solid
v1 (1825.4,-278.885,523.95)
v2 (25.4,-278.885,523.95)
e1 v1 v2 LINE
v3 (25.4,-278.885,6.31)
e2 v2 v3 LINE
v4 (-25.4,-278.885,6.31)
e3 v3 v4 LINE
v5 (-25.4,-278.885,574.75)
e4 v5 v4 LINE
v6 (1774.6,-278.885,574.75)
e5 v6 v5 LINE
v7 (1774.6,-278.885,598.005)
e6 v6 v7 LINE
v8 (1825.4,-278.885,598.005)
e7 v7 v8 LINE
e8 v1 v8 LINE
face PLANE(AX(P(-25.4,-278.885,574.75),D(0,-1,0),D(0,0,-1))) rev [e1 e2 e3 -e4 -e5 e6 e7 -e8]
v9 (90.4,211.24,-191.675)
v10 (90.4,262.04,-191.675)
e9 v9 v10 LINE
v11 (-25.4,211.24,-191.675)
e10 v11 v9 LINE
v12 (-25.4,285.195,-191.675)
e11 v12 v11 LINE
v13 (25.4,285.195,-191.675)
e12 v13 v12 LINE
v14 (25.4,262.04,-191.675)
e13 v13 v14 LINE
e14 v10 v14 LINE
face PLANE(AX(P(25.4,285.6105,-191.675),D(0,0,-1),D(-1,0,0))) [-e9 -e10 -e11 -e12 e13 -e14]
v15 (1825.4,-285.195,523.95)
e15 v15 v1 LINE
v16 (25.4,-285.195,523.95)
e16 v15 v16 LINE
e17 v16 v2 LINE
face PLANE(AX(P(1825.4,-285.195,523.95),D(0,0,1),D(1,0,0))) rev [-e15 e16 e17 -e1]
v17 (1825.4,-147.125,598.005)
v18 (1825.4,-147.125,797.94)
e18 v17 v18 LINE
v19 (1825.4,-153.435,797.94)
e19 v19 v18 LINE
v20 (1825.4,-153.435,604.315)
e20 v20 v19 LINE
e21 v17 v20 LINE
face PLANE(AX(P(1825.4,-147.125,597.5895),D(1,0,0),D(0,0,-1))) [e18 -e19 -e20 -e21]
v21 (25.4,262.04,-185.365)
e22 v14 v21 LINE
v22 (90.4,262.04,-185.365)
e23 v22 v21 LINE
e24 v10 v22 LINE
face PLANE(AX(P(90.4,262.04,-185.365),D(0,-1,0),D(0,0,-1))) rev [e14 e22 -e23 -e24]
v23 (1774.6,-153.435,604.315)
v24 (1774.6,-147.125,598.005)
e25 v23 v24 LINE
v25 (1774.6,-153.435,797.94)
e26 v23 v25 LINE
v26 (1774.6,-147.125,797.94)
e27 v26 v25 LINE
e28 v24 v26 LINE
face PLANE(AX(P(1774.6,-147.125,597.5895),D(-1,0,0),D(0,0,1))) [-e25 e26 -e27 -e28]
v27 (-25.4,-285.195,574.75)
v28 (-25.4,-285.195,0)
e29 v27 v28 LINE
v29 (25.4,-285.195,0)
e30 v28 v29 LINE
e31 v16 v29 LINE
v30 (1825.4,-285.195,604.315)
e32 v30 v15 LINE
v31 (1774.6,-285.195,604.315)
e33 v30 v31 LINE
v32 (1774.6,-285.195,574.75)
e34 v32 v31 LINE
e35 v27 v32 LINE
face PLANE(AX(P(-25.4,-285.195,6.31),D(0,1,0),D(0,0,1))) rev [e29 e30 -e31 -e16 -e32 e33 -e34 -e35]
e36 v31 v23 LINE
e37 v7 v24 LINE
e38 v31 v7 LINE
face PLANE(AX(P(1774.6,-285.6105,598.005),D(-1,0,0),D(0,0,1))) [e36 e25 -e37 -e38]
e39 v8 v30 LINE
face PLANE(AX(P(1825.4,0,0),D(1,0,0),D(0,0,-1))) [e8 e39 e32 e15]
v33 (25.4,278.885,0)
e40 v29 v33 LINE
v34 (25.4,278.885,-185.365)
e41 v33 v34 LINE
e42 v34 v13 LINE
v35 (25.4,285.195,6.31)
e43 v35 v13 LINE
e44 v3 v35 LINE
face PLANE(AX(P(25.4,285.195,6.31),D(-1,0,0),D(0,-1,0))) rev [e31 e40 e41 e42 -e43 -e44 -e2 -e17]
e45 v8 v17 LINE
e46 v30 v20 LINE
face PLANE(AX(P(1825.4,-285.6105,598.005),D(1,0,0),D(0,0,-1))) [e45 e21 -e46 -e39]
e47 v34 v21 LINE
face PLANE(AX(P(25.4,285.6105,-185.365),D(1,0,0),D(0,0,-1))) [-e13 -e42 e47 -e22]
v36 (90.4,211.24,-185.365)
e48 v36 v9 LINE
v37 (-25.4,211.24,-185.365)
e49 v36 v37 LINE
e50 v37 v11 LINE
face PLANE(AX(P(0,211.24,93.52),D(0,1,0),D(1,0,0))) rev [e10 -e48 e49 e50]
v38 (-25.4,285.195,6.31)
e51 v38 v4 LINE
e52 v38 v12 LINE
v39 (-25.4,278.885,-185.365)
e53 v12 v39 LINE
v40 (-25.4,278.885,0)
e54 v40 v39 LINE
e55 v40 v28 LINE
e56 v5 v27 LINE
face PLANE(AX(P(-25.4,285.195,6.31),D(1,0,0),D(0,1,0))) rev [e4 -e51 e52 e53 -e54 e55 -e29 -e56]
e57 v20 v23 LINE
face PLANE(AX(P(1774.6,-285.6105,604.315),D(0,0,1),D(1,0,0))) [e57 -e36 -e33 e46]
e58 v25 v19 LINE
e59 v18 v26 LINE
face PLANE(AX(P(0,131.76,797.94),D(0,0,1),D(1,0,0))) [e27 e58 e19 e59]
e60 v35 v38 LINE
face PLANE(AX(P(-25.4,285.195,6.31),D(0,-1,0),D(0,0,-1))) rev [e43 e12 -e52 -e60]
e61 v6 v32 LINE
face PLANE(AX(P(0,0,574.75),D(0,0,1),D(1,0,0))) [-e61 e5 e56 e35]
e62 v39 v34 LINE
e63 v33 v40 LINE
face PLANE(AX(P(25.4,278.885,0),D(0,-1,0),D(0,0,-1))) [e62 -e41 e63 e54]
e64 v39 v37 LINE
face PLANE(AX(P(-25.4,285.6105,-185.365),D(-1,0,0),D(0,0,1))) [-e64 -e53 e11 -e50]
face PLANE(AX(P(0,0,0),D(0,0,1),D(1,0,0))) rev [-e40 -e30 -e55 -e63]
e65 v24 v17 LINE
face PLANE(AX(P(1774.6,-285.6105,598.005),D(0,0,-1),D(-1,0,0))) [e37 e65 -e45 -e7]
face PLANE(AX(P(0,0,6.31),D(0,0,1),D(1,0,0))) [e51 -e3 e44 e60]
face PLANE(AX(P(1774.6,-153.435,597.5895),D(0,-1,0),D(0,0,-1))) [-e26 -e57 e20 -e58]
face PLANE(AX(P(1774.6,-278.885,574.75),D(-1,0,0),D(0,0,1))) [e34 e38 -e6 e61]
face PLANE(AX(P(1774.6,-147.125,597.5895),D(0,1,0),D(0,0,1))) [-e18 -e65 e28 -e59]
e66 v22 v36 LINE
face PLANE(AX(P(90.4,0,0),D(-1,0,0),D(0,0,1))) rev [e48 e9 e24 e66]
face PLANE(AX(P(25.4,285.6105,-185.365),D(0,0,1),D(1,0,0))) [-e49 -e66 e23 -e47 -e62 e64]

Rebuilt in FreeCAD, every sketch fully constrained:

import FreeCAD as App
import Part
import Sketcher
Q = App.Units.Quantity

doc = App.newDocument("Part")
body = doc.addObject("PartDesign::Body", "Body")

# Sketch on XY plane
sketch1 = body.newObject("Sketcher::SketchObject", "Sketch")
sketch1.AttachmentSupport = (doc.getObject("XY_Plane"), [""])
sketch1.MapMode = "FlatFace"
sketch1.addGeometry([
    Part.LineSegment(App.Vector(-25, 285, 0), App.Vector(-25, -285, 0)),
    Part.LineSegment(App.Vector(-25, -285, 0), App.Vector(25, -285, 0)),
    Part.LineSegment(App.Vector(25, -285, 0), App.Vector(25, 285, 0)),
    Part.LineSegment(App.Vector(25, 285, 0), App.Vector(-25, 285, 0)),
], False)
sketch1.addConstraint([
    Sketcher.Constraint("Coincident", 0, 2, 1, 1),
    Sketcher.Constraint("Coincident", 1, 2, 2, 1),
    Sketcher.Constraint("Coincident", 2, 2, 3, 1),
    Sketcher.Constraint("Coincident", 3, 2, 0, 1),
    Sketcher.Constraint("Vertical", 0),
    Sketcher.Constraint("Horizontal", 1),
    Sketcher.Constraint("Vertical", 2),
    Sketcher.Constraint("Horizontal", 3),
    Sketcher.Constraint("Symmetric", 0, 2, 2, 2, -1, 1),
    Sketcher.Constraint("DistanceX", 1, 1, 1, 2, Q("50.8 mm")),
    Sketcher.Constraint("DistanceY", 0, 2, 0, 1, Q("570.39 mm")),
])
pad1 = body.newObject("PartDesign::Pad", "Pad")
pad1.Profile = sketch1
pad1.Length = 6.31

# Sketch on XY plane
sketch2 = body.newObject("Sketcher::SketchObject", "Sketch001")
sketch2.AttachmentSupport = (doc.getObject("XY_Plane"), [""])
sketch2.MapMode = "FlatFace"
sketch2.AttachmentOffset = App.Placement(App.Vector(0, 0, 6.31), App.Rotation())
sketch2.addGeometry([
    Part.LineSegment(App.Vector(-25, -279, 0), App.Vector(-25, -285, 0)),
    Part.LineSegment(App.Vector(-25, -285, 0), App.Vector(25, -285, 0)),
    Part.LineSegment(App.Vector(25, -285, 0), App.Vector(25, -279, 0)),
    Part.LineSegment(App.Vector(25, -279, 0), App.Vector(-25, -279, 0)),
], False)
sketch2.addConstraint([
    Sketcher.Constraint("Coincident", 0, 2, 1, 1),
    Sketcher.Constraint("Coincident", 1, 2, 2, 1),
    Sketcher.Constraint("Coincident", 2, 2, 3, 1),
    Sketcher.Constraint("Coincident", 3, 2, 0, 1),
    Sketcher.Constraint("Vertical", 0),
    Sketcher.Constraint("Horizontal", 1),
    Sketcher.Constraint("Vertical", 2),
    Sketcher.Constraint("Horizontal", 3),
    Sketcher.Constraint("DistanceX", 1, 1, 1, 2, Q("50.8 mm")),
    Sketcher.Constraint("DistanceY", 0, 2, 0, 1, Q("6.31 mm")),
    Sketcher.Constraint("DistanceX", 0, 2, -1, 1, Q("25.4 mm")),
    Sketcher.Constraint("DistanceY", 0, 2, -1, 1, Q("285.195 mm")),
])
pad2 = body.newObject("PartDesign::Pad", "Pad001")
pad2.Profile = sketch2
pad2.Length = 568.44

# Sketch on YZ plane
sketch3 = body.newObject("Sketcher::SketchObject", "Sketch002")
sketch3.AttachmentSupport = (doc.getObject("YZ_Plane"), [""])
sketch3.MapMode = "FlatFace"
sketch3.AttachmentOffset = App.Placement(App.Vector(0, 0, 25.4), App.Rotation())
sketch3.addGeometry([
    Part.LineSegment(App.Vector(-279, 575, 0), App.Vector(-285, 575, 0)),
    Part.LineSegment(App.Vector(-285, 575, 0), App.Vector(-285, 524, 0)),
    Part.LineSegment(App.Vector(-285, 524, 0), App.Vector(-279, 524, 0)),
    Part.LineSegment(App.Vector(-279, 524, 0), App.Vector(-279, 575, 0)),
], False)
sketch3.addConstraint([
    Sketcher.Constraint("Coincident", 0, 2, 1, 1),
    Sketcher.Constraint("Coincident", 1, 2, 2, 1),
    Sketcher.Constraint("Coincident", 2, 2, 3, 1),
    Sketcher.Constraint("Coincident", 3, 2, 0, 1),
    Sketcher.Constraint("Horizontal", 0),
    Sketcher.Constraint("Vertical", 1),
    Sketcher.Constraint("Horizontal", 2),
    Sketcher.Constraint("Vertical", 3),
    Sketcher.Constraint("DistanceY", 1, 2, 1, 1, Q("50.8 mm")),
    Sketcher.Constraint("DistanceX", 0, 2, 0, 1, Q("6.31 mm")),
    Sketcher.Constraint("DistanceY", -1, 1, 0, 2, Q("574.75 mm")),
    Sketcher.Constraint("DistanceX", 0, 2, -1, 1, Q("285.195 mm")),
])
pad3 = body.newObject("PartDesign::Pad", "Pad002")
pad3.Profile = sketch3
pad3.Length = 1800

# Sketch on XY plane
sketch4 = body.newObject("Sketcher::SketchObject", "Sketch003")
sketch4.AttachmentSupport = (doc.getObject("XY_Plane"), [""])
sketch4.MapMode = "FlatFace"
sketch4.addGeometry([
    Part.LineSegment(App.Vector(25, 285, 0), App.Vector(25, 279, 0)),
    Part.LineSegment(App.Vector(25, 279, 0), App.Vector(-25, 279, 0)),
    Part.LineSegment(App.Vector(-25, 279, 0), App.Vector(-25, 285, 0)),
    Part.LineSegment(App.Vector(-25, 285, 0), App.Vector(25, 285, 0)),
], False)
sketch4.addConstraint([
    Sketcher.Constraint("Coincident", 0, 2, 1, 1),
    Sketcher.Constraint("Coincident", 1, 2, 2, 1),
    Sketcher.Constraint("Coincident", 2, 2, 3, 1),
    Sketcher.Constraint("Coincident", 3, 2, 0, 1),
    Sketcher.Constraint("Vertical", 0),
    Sketcher.Constraint("Horizontal", 1),
    Sketcher.Constraint("Vertical", 2),
    Sketcher.Constraint("Horizontal", 3),
    Sketcher.Constraint("DistanceX", 1, 2, 1, 1, Q("50.8 mm")),
    Sketcher.Constraint("DistanceY", 0, 2, 0, 1, Q("6.31 mm")),
    Sketcher.Constraint("DistanceX", -1, 1, 0, 2, Q("25.4 mm")),
    Sketcher.Constraint("DistanceY", -1, 1, 0, 2, Q("278.885 mm")),
])

# Sketch on YZ plane
sketch5 = body.newObject("Sketcher::SketchObject", "Sketch004")
sketch5.AttachmentSupport = (doc.getObject("YZ_Plane"), [""])
sketch5.MapMode = "FlatFace"
sketch5.addGeometry([
    Part.LineSegment(App.Vector(282, 0, 0), App.Vector(282, -189, 0)),
    Part.LineSegment(App.Vector(282, -189, 0), App.Vector(211, -189, 0)),
], False)
sketch5.addConstraint([
    Sketcher.Constraint("Coincident", 0, 2, 1, 1),
    Sketcher.Constraint("Vertical", 0),
    Sketcher.Constraint("Horizontal", 1),
    Sketcher.Constraint("PointOnObject", 0, 1, -1),
    Sketcher.Constraint("DistanceX", 1, 2, 1, 1, Q("70.8 mm")),
    Sketcher.Constraint("DistanceY", 0, 2, 0, 1, Q("188.52 mm")),
    Sketcher.Constraint("DistanceX", -1, 1, 0, 1, Q("282.04 mm")),
])
doc.recompute()

additivepipe = body.newObject("PartDesign::AdditivePipe", "AdditivePipe")
additivepipe.Profile = sketch4
additivepipe.Spine = (sketch5, ["Edge1", "Edge2"])
additivepipe.Transition = "Right corner"

# Sketch on XY plane
sketch6 = body.newObject("Sketcher::SketchObject", "Sketch005")
sketch6.AttachmentSupport = (doc.getObject("XY_Plane"), [""])
sketch6.MapMode = "FlatFace"
sketch6.AttachmentOffset = App.Placement(App.Vector(0, 0, 574.75), App.Rotation())
sketch6.addGeometry([
    Part.LineSegment(App.Vector(1775, -279, 0), App.Vector(1775, -285, 0)),
    Part.LineSegment(App.Vector(1775, -285, 0), App.Vector(1825, -285, 0)),
    Part.LineSegment(App.Vector(1825, -285, 0), App.Vector(1825, -279, 0)),
    Part.LineSegment(App.Vector(1825, -279, 0), App.Vector(1775, -279, 0)),
], False)
sketch6.addConstraint([
    Sketcher.Constraint("Coincident", 0, 2, 1, 1),
    Sketcher.Constraint("Coincident", 1, 2, 2, 1),
    Sketcher.Constraint("Coincident", 2, 2, 3, 1),
    Sketcher.Constraint("Coincident", 3, 2, 0, 1),
    Sketcher.Constraint("Vertical", 0),
    Sketcher.Constraint("Horizontal", 1),
    Sketcher.Constraint("Vertical", 2),
    Sketcher.Constraint("Horizontal", 3),
    Sketcher.Constraint("DistanceX", 1, 1, 1, 2, Q("50.8 mm")),
    Sketcher.Constraint("DistanceY", 0, 2, 0, 1, Q("6.31 mm")),
    Sketcher.Constraint("DistanceX", -1, 1, 0, 2, Q("1774.6 mm")),
    Sketcher.Constraint("DistanceY", 0, 2, -1, 1, Q("285.195 mm")),
])

# Sketch on YZ plane
sketch7 = body.newObject("Sketcher::SketchObject", "Sketch006")
sketch7.AttachmentSupport = (doc.getObject("YZ_Plane"), [""])
sketch7.MapMode = "FlatFace"
sketch7.AttachmentOffset = App.Placement(App.Vector(0, 0, 1800), App.Rotation())
sketch7.addGeometry([
    Part.LineSegment(App.Vector(-282, 575, 0), App.Vector(-282, 601, 0)),
    Part.LineSegment(App.Vector(-282, 601, 0), App.Vector(-150, 601, 0)),
    Part.LineSegment(App.Vector(-150, 601, 0), App.Vector(-150, 798, 0)),
], False)
sketch7.addConstraint([
    Sketcher.Constraint("Coincident", 0, 2, 1, 1),
    Sketcher.Constraint("Coincident", 1, 2, 2, 1),
    Sketcher.Constraint("Vertical", 0),
    Sketcher.Constraint("Horizontal", 1),
    Sketcher.Constraint("Vertical", 2),
    Sketcher.Constraint("DistanceX", 1, 1, 1, 2, Q("131.76 mm")),
    Sketcher.Constraint("DistanceY", 0, 1, 0, 2, Q("26.41 mm")),
    Sketcher.Constraint("DistanceY", 2, 1, 2, 2, Q("196.78 mm")),
    Sketcher.Constraint("DistanceX", 0, 1, -1, 1, Q("282.04 mm")),
    Sketcher.Constraint("DistanceY", -1, 1, 0, 1, Q("574.75 mm")),
])
doc.recompute()

additivepipe2 = body.newObject("PartDesign::AdditivePipe", "AdditivePipe001")
additivepipe2.Profile = sketch6
additivepipe2.Spine = (sketch7, ["Edge1", "Edge2", "Edge3"])
additivepipe2.Transition = "Right corner"

# Sketch on YZ plane
sketch8 = body.newObject("Sketcher::SketchObject", "Sketch007")
sketch8.AttachmentSupport = (doc.getObject("YZ_Plane"), [""])
sketch8.MapMode = "FlatFace"
sketch8.AttachmentOffset = App.Placement(App.Vector(0, 0, 25.4), App.Rotation())
sketch8.addGeometry([
    Part.LineSegment(App.Vector(262, -185, 0), App.Vector(211, -185, 0)),
    Part.LineSegment(App.Vector(211, -185, 0), App.Vector(211, -192, 0)),
    Part.LineSegment(App.Vector(211, -192, 0), App.Vector(262, -192, 0)),
    Part.LineSegment(App.Vector(262, -192, 0), App.Vector(262, -185, 0)),
], False)
sketch8.addConstraint([
    Sketcher.Constraint("Coincident", 0, 2, 1, 1),
    Sketcher.Constraint("Coincident", 1, 2, 2, 1),
    Sketcher.Constraint("Coincident", 2, 2, 3, 1),
    Sketcher.Constraint("Coincident", 3, 2, 0, 1),
    Sketcher.Constraint("Horizontal", 0),
    Sketcher.Constraint("Vertical", 1),
    Sketcher.Constraint("Horizontal", 2),
    Sketcher.Constraint("Vertical", 3),
    Sketcher.Constraint("DistanceX", 0, 2, 0, 1, Q("50.8 mm")),
    Sketcher.Constraint("DistanceY", 1, 2, 1, 1, Q("6.31 mm")),
    Sketcher.Constraint("DistanceX", -1, 1, 0, 2, Q("211.24 mm")),
    Sketcher.Constraint("DistanceY", 0, 2, -1, 1, Q("185.365 mm")),
])
pad4 = body.newObject("PartDesign::Pad", "Pad003")
pad4.Profile = sketch8
pad4.Length = 65

doc.recompute()
